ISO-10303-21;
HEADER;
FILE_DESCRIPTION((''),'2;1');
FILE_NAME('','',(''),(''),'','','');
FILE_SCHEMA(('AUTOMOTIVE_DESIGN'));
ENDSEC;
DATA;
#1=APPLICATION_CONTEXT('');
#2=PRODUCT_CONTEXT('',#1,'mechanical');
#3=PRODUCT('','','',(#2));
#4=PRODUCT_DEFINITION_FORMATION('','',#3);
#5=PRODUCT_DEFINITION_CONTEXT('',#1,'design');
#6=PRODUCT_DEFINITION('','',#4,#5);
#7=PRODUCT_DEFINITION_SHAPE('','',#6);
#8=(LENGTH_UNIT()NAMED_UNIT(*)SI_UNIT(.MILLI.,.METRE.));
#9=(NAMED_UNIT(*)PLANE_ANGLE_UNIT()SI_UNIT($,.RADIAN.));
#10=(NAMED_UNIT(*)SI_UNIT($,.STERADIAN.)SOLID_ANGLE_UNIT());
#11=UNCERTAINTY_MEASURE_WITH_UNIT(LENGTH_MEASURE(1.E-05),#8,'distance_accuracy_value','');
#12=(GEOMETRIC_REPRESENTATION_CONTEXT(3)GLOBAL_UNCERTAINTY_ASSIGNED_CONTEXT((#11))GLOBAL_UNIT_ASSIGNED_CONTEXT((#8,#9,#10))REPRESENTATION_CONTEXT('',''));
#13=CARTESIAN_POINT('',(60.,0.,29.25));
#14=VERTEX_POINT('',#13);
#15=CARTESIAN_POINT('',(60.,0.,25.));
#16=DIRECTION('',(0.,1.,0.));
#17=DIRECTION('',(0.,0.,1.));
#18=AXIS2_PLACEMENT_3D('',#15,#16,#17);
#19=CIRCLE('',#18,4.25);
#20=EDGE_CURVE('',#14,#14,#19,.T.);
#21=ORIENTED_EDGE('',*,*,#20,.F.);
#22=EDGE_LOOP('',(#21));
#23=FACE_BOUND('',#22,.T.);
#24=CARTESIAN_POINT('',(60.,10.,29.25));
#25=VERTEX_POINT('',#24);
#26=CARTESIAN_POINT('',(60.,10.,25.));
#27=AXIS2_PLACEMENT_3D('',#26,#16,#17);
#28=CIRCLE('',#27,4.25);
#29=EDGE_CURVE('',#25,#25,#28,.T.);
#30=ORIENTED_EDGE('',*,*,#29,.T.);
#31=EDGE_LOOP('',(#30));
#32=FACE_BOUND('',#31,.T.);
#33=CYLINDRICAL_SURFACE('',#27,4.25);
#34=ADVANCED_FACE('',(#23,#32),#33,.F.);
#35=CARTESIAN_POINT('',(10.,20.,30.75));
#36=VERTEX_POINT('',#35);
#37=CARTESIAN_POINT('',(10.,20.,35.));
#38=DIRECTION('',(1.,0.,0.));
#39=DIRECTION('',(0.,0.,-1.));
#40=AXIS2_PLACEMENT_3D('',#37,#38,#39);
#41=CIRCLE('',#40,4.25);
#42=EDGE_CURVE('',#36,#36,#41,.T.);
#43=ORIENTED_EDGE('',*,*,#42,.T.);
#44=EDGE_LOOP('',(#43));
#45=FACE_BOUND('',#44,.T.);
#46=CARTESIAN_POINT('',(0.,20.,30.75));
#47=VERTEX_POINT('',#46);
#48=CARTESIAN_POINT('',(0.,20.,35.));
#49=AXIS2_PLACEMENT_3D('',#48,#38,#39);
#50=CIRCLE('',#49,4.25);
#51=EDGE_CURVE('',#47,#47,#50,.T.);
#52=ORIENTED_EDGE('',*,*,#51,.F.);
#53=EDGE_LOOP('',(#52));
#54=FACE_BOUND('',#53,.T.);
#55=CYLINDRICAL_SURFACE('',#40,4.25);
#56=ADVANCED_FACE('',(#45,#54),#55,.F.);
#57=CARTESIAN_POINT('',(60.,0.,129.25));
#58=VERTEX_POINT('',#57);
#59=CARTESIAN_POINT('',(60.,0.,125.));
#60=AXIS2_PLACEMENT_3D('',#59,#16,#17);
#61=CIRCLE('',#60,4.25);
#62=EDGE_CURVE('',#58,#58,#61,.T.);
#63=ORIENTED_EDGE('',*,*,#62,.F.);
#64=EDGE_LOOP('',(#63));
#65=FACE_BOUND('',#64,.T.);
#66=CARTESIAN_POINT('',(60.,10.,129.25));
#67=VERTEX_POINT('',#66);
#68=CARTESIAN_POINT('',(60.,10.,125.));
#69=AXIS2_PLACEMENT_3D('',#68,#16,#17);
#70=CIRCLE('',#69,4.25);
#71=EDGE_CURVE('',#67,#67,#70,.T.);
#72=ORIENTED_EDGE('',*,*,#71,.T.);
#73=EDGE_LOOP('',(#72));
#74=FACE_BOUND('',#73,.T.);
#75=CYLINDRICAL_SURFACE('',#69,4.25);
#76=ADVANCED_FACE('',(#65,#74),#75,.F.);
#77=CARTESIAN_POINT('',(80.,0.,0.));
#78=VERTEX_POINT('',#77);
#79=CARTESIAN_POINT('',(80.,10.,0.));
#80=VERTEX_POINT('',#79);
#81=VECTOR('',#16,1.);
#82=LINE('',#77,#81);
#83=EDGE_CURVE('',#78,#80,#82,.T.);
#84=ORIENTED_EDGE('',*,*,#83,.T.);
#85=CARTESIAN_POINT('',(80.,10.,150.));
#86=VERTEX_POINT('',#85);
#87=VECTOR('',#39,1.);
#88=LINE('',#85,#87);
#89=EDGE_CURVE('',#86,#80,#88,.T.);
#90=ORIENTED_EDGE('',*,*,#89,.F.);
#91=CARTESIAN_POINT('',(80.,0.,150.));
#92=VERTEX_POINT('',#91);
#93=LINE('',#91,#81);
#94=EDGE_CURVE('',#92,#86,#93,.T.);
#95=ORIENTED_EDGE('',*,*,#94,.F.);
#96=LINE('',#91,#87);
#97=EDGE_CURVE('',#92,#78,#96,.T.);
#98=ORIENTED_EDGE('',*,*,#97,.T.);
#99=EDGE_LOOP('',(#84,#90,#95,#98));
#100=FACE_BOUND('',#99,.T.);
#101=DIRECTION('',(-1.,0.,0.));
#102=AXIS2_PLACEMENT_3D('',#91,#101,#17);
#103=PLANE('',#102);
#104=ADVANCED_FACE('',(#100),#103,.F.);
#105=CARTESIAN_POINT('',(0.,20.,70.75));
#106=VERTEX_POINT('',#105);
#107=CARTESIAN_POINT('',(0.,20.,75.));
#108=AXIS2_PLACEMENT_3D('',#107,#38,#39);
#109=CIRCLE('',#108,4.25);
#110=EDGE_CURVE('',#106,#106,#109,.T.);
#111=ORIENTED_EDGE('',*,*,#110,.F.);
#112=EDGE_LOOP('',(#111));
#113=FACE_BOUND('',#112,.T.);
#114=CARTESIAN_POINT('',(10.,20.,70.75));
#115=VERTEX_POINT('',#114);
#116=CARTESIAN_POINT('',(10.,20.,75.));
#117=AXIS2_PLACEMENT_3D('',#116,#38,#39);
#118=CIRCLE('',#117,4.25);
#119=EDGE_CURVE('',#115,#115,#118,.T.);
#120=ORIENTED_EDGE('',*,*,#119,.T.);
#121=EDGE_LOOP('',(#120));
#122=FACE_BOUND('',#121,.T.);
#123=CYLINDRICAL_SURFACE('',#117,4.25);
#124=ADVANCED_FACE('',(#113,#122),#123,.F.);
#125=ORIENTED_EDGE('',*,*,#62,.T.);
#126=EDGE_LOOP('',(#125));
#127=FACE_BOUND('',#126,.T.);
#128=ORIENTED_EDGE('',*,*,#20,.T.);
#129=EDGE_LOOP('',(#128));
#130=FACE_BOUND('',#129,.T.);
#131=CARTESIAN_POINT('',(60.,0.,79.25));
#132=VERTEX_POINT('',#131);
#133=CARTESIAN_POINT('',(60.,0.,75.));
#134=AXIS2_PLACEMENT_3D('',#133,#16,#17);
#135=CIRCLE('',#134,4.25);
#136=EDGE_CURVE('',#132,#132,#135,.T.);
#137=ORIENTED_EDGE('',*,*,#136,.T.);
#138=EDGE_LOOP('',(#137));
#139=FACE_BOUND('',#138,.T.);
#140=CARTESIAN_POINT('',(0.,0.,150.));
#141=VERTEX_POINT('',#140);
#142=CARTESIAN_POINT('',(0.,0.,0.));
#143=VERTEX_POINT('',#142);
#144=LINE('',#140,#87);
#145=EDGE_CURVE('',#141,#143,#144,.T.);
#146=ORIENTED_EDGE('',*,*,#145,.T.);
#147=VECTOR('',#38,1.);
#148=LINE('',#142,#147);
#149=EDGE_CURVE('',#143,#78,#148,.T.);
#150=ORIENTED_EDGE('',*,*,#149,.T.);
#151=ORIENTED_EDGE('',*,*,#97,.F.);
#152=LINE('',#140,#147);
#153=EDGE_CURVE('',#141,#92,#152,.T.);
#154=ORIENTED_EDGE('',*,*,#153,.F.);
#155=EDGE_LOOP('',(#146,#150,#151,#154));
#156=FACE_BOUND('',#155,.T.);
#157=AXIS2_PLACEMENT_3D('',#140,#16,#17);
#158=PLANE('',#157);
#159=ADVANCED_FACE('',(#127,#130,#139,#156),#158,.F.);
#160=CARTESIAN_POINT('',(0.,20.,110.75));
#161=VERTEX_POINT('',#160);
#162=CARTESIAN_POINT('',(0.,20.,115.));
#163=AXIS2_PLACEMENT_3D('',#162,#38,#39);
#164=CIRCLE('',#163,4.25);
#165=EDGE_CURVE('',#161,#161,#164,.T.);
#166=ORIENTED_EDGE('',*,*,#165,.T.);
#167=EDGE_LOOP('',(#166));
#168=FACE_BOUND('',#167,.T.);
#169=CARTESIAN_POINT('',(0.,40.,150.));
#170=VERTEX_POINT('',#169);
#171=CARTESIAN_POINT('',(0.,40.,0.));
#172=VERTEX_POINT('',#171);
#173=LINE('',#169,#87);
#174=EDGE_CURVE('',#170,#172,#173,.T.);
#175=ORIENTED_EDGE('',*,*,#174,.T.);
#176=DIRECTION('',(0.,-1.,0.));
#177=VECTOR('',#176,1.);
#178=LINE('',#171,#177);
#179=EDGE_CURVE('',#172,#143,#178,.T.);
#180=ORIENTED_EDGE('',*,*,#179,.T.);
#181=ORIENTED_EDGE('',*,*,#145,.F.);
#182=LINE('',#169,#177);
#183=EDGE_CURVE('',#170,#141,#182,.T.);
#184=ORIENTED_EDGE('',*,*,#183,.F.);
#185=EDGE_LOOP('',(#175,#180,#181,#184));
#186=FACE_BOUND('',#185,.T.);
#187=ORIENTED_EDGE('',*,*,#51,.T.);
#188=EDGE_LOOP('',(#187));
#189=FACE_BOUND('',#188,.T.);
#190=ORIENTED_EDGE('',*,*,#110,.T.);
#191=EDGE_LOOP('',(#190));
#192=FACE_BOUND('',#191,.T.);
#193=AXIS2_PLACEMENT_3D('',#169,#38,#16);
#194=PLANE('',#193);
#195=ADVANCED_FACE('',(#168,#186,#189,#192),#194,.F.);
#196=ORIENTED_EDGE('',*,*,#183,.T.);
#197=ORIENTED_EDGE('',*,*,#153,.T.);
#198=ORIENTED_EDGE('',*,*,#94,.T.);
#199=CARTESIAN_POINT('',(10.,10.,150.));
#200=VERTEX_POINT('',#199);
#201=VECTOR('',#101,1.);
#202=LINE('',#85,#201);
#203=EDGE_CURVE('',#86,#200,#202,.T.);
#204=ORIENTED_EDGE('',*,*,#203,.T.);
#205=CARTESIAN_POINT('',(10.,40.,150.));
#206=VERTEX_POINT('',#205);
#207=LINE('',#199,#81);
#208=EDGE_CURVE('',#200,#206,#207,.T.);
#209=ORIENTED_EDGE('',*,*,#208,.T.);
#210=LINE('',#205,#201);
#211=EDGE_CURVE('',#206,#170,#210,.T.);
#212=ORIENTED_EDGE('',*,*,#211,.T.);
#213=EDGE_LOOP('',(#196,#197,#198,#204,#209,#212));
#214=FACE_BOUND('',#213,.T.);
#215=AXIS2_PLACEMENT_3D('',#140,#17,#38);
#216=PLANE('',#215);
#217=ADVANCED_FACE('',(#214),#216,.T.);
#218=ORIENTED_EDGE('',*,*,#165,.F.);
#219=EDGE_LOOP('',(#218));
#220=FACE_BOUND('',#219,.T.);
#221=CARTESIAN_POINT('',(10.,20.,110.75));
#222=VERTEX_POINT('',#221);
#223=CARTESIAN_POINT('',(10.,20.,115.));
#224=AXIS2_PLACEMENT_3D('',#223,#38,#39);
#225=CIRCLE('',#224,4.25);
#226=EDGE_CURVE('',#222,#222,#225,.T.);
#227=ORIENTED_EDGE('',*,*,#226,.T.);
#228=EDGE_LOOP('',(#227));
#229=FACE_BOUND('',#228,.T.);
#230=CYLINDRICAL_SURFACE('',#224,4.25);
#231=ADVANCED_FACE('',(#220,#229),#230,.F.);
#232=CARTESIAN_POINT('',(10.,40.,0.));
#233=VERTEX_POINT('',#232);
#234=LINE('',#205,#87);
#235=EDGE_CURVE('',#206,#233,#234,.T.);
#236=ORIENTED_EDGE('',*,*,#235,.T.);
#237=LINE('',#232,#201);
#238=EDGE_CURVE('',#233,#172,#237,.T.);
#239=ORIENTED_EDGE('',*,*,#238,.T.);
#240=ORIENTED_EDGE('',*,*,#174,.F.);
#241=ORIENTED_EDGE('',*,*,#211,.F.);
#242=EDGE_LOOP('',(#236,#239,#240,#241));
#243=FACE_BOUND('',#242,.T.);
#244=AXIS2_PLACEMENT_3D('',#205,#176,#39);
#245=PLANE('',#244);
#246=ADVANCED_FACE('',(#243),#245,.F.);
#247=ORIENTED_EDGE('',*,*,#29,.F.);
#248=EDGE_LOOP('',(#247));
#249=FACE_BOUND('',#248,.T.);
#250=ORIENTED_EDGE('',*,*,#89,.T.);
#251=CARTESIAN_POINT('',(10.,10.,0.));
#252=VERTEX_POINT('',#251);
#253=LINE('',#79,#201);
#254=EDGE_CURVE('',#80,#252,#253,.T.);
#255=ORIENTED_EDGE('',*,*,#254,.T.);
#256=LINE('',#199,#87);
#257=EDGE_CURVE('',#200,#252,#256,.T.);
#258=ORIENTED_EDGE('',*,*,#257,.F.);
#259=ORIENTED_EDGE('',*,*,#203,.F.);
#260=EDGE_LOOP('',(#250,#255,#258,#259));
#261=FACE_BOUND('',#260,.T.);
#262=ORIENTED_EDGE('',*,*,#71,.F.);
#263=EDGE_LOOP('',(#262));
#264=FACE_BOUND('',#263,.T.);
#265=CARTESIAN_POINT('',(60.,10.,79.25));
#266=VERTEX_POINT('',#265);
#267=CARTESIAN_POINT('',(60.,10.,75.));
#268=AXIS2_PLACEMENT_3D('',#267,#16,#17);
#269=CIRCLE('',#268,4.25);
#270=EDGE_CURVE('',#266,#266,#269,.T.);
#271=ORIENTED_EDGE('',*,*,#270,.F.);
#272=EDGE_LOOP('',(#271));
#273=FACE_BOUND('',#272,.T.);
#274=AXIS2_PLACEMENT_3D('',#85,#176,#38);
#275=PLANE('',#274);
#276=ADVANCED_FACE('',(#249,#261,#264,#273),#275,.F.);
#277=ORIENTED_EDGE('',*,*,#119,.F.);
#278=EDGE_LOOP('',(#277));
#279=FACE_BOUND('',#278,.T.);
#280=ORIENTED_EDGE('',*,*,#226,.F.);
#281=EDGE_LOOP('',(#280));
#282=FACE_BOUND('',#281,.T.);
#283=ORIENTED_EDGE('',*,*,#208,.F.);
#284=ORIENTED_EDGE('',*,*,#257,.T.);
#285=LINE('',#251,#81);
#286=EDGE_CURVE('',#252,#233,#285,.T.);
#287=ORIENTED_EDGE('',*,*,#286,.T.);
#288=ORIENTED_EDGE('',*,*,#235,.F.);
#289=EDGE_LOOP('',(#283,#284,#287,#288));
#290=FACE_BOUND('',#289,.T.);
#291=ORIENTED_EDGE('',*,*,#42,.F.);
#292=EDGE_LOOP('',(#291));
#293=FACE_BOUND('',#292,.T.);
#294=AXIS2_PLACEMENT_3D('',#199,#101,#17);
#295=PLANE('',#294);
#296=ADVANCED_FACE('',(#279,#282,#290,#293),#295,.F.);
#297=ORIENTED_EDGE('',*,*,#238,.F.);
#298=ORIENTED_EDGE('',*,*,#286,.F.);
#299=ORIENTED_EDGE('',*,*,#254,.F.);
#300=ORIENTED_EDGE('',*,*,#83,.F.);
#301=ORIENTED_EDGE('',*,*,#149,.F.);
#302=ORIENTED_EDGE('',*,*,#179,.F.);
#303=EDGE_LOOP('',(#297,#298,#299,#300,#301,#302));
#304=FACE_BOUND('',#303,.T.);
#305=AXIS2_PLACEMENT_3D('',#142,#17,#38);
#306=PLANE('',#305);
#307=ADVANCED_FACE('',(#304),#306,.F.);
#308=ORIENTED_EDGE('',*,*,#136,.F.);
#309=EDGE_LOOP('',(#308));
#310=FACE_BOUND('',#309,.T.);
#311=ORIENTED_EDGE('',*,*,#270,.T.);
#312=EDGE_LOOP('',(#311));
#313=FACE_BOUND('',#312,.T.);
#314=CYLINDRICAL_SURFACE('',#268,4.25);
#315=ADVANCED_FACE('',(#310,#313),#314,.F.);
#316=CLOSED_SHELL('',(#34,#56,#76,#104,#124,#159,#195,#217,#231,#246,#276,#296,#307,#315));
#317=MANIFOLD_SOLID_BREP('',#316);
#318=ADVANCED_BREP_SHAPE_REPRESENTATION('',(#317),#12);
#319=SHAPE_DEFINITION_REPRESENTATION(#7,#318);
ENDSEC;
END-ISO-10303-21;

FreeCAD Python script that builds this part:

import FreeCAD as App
import Part
import Sketcher
Q = App.Units.Quantity

doc = App.newDocument("Part")
params = doc.addObject("Spreadsheet::Sheet", "Params")
for row, (alias, value) in enumerate([
    ("sketch1_width", "80 mm"),
    ("sketch1_width2", "70 mm"),
    ("sketch1_height", "40 mm"),
    ("pad1_length", "150 mm"),
    ("sketch2_diameter", "8.5 mm"),
    ("hole_diameter", "8.5 mm"),
    ("sketch3_diameter", "8.5 mm"),
    ("hole2_diameter", "8.5 mm"),
], start=1):
    params.set(f"A{row}", alias)
    params.set(f"B{row}", "=" + value)
    params.setAlias(f"B{row}", alias)

body = doc.addObject("PartDesign::Body", "Body")

# Sketch on XY plane
sketch1 = body.newObject("Sketcher::SketchObject", "Sketch")
sketch1.AttachmentSupport = (doc.getObject("XY_Plane"), [""])
sketch1.MapMode = "FlatFace"
sketch1.addGeometry([
    Part.LineSegment(App.Vector(0, 40, 0), App.Vector(0, 0, 0)),  # 0
    Part.LineSegment(App.Vector(0, 0, 0), App.Vector(80, 0, 0)),  # 1
    Part.LineSegment(App.Vector(80, 0, 0), App.Vector(80, 10, 0)),  # 2
    Part.LineSegment(App.Vector(80, 10, 0), App.Vector(10, 10, 0)),  # 3
    Part.LineSegment(App.Vector(10, 10, 0), App.Vector(10, 40, 0)),  # 4
    Part.LineSegment(App.Vector(10, 40, 0), App.Vector(0, 40, 0)),  # 5
], False)
sketch1.addConstraint([
    Sketcher.Constraint("Coincident", 0, 2, 1, 1),
    Sketcher.Constraint("Coincident", 1, 2, 2, 1),
    Sketcher.Constraint("Coincident", 2, 2, 3, 1),
    Sketcher.Constraint("Coincident", 3, 2, 4, 1),
    Sketcher.Constraint("Coincident", 4, 2, 5, 1),
    Sketcher.Constraint("Coincident", 5, 2, 0, 1),
    Sketcher.Constraint("Vertical", 0),
    Sketcher.Constraint("Horizontal", 1),
    Sketcher.Constraint("Vertical", 2),
    Sketcher.Constraint("Horizontal", 3),
    Sketcher.Constraint("Vertical", 4),
    Sketcher.Constraint("Horizontal", 5),
    Sketcher.Constraint("Coincident", 0, 2, -1, 1),
    Sketcher.Constraint("Equal", 5, 2),
    Sketcher.Constraint("DistanceX", 1, 1, 1, 2, Q("80 mm")),
    Sketcher.Constraint("DistanceX", 3, 2, 3, 1, Q("70 mm")),
    Sketcher.Constraint("DistanceY", 0, 2, 0, 1, Q("40 mm")),
])
sketch1.setExpression("Constraints[14]", "Params.sketch1_width")
sketch1.setExpression("Constraints[15]", "Params.sketch1_width2")
sketch1.setExpression("Constraints[16]", "Params.sketch1_height")
pad1 = body.newObject("PartDesign::Pad", "Pad")
pad1.Profile = sketch1
pad1.setExpression("Length", "Params.pad1_length")

# Sketch on YZ plane
sketch2 = body.newObject("Sketcher::SketchObject", "Sketch001")
sketch2.AttachmentSupport = (doc.getObject("YZ_Plane"), [""])
sketch2.MapMode = "FlatFace"
sketch2.AttachmentOffset = App.Placement(App.Vector(0, 0, 10), App.Rotation())
sketch2.addGeometry([
    Part.Circle(App.Vector(20, 115, 0), App.Vector(0, 0, 1), 4.25),
    Part.Circle(App.Vector(20, 35, 0), App.Vector(0, 0, 1), 4.25),
    Part.Circle(App.Vector(20, 75, 0), App.Vector(0, 0, 1), 4.25),
], False)
sketch2.addConstraint([
    Sketcher.Constraint("Equal", 0, 1),
    Sketcher.Constraint("Equal", 1, 2),
    Sketcher.Constraint("Vertical", 0, 3, 1, 3),
    Sketcher.Constraint("Vertical", 1, 3, 2, 3),
    Sketcher.Constraint("Diameter", 0, Q("8.5 mm")),
    Sketcher.Constraint("DistanceX", -1, 1, 0, 3, Q("20 mm")),
    Sketcher.Constraint("DistanceY", -1, 1, 0, 3, Q("115 mm")),
    Sketcher.Constraint("DistanceY", -1, 1, 1, 3, Q("35 mm")),
    Sketcher.Constraint("DistanceY", -1, 1, 2, 3, Q("75 mm")),
])
sketch2.setExpression("Constraints[4]", "Params.sketch2_diameter")
doc.recompute()
hole = body.newObject("PartDesign::Hole", "Hole")
hole.Profile = sketch2
hole.ThreadType = "None"
hole.setExpression("Diameter", "Params.hole_diameter")
hole.DepthType = "ThroughAll"

# Sketch on XZ plane
sketch3 = body.newObject("Sketcher::SketchObject", "Sketch002")
sketch3.AttachmentSupport = (doc.getObject("XZ_Plane"), [""])
sketch3.MapMode = "FlatFace"
sketch3.AttachmentOffset = App.Placement(App.Vector(0, 0, -10), App.Rotation())
sketch3.addGeometry([
    Part.Circle(App.Vector(60, 125, 0), App.Vector(0, 0, 1), 4.25),
    Part.Circle(App.Vector(60, 25, 0), App.Vector(0, 0, 1), 4.25),
    Part.Circle(App.Vector(60, 75, 0), App.Vector(0, 0, 1), 4.25),
], False)
sketch3.addConstraint([
    Sketcher.Constraint("Equal", 0, 1),
    Sketcher.Constraint("Equal", 1, 2),
    Sketcher.Constraint("Vertical", 0, 3, 1, 3),
    Sketcher.Constraint("Vertical", 1, 3, 2, 3),
    Sketcher.Constraint("Diameter", 0, Q("8.5 mm")),
    Sketcher.Constraint("DistanceX", -1, 1, 0, 3, Q("60 mm")),
    Sketcher.Constraint("DistanceY", -1, 1, 0, 3, Q("125 mm")),
    Sketcher.Constraint("DistanceY", -1, 1, 1, 3, Q("25 mm")),
    Sketcher.Constraint("DistanceY", -1, 1, 2, 3, Q("75 mm")),
])
sketch3.setExpression("Constraints[4]", "Params.sketch3_diameter")
doc.recompute()
hole2 = body.newObject("PartDesign::Hole", "Hole001")
hole2.Profile = sketch3
hole2.ThreadType = "None"
hole2.setExpression("Diameter", "Params.hole2_diameter")
hole2.DepthType = "ThroughAll"
hole2.Reversed = True

doc.recompute()
